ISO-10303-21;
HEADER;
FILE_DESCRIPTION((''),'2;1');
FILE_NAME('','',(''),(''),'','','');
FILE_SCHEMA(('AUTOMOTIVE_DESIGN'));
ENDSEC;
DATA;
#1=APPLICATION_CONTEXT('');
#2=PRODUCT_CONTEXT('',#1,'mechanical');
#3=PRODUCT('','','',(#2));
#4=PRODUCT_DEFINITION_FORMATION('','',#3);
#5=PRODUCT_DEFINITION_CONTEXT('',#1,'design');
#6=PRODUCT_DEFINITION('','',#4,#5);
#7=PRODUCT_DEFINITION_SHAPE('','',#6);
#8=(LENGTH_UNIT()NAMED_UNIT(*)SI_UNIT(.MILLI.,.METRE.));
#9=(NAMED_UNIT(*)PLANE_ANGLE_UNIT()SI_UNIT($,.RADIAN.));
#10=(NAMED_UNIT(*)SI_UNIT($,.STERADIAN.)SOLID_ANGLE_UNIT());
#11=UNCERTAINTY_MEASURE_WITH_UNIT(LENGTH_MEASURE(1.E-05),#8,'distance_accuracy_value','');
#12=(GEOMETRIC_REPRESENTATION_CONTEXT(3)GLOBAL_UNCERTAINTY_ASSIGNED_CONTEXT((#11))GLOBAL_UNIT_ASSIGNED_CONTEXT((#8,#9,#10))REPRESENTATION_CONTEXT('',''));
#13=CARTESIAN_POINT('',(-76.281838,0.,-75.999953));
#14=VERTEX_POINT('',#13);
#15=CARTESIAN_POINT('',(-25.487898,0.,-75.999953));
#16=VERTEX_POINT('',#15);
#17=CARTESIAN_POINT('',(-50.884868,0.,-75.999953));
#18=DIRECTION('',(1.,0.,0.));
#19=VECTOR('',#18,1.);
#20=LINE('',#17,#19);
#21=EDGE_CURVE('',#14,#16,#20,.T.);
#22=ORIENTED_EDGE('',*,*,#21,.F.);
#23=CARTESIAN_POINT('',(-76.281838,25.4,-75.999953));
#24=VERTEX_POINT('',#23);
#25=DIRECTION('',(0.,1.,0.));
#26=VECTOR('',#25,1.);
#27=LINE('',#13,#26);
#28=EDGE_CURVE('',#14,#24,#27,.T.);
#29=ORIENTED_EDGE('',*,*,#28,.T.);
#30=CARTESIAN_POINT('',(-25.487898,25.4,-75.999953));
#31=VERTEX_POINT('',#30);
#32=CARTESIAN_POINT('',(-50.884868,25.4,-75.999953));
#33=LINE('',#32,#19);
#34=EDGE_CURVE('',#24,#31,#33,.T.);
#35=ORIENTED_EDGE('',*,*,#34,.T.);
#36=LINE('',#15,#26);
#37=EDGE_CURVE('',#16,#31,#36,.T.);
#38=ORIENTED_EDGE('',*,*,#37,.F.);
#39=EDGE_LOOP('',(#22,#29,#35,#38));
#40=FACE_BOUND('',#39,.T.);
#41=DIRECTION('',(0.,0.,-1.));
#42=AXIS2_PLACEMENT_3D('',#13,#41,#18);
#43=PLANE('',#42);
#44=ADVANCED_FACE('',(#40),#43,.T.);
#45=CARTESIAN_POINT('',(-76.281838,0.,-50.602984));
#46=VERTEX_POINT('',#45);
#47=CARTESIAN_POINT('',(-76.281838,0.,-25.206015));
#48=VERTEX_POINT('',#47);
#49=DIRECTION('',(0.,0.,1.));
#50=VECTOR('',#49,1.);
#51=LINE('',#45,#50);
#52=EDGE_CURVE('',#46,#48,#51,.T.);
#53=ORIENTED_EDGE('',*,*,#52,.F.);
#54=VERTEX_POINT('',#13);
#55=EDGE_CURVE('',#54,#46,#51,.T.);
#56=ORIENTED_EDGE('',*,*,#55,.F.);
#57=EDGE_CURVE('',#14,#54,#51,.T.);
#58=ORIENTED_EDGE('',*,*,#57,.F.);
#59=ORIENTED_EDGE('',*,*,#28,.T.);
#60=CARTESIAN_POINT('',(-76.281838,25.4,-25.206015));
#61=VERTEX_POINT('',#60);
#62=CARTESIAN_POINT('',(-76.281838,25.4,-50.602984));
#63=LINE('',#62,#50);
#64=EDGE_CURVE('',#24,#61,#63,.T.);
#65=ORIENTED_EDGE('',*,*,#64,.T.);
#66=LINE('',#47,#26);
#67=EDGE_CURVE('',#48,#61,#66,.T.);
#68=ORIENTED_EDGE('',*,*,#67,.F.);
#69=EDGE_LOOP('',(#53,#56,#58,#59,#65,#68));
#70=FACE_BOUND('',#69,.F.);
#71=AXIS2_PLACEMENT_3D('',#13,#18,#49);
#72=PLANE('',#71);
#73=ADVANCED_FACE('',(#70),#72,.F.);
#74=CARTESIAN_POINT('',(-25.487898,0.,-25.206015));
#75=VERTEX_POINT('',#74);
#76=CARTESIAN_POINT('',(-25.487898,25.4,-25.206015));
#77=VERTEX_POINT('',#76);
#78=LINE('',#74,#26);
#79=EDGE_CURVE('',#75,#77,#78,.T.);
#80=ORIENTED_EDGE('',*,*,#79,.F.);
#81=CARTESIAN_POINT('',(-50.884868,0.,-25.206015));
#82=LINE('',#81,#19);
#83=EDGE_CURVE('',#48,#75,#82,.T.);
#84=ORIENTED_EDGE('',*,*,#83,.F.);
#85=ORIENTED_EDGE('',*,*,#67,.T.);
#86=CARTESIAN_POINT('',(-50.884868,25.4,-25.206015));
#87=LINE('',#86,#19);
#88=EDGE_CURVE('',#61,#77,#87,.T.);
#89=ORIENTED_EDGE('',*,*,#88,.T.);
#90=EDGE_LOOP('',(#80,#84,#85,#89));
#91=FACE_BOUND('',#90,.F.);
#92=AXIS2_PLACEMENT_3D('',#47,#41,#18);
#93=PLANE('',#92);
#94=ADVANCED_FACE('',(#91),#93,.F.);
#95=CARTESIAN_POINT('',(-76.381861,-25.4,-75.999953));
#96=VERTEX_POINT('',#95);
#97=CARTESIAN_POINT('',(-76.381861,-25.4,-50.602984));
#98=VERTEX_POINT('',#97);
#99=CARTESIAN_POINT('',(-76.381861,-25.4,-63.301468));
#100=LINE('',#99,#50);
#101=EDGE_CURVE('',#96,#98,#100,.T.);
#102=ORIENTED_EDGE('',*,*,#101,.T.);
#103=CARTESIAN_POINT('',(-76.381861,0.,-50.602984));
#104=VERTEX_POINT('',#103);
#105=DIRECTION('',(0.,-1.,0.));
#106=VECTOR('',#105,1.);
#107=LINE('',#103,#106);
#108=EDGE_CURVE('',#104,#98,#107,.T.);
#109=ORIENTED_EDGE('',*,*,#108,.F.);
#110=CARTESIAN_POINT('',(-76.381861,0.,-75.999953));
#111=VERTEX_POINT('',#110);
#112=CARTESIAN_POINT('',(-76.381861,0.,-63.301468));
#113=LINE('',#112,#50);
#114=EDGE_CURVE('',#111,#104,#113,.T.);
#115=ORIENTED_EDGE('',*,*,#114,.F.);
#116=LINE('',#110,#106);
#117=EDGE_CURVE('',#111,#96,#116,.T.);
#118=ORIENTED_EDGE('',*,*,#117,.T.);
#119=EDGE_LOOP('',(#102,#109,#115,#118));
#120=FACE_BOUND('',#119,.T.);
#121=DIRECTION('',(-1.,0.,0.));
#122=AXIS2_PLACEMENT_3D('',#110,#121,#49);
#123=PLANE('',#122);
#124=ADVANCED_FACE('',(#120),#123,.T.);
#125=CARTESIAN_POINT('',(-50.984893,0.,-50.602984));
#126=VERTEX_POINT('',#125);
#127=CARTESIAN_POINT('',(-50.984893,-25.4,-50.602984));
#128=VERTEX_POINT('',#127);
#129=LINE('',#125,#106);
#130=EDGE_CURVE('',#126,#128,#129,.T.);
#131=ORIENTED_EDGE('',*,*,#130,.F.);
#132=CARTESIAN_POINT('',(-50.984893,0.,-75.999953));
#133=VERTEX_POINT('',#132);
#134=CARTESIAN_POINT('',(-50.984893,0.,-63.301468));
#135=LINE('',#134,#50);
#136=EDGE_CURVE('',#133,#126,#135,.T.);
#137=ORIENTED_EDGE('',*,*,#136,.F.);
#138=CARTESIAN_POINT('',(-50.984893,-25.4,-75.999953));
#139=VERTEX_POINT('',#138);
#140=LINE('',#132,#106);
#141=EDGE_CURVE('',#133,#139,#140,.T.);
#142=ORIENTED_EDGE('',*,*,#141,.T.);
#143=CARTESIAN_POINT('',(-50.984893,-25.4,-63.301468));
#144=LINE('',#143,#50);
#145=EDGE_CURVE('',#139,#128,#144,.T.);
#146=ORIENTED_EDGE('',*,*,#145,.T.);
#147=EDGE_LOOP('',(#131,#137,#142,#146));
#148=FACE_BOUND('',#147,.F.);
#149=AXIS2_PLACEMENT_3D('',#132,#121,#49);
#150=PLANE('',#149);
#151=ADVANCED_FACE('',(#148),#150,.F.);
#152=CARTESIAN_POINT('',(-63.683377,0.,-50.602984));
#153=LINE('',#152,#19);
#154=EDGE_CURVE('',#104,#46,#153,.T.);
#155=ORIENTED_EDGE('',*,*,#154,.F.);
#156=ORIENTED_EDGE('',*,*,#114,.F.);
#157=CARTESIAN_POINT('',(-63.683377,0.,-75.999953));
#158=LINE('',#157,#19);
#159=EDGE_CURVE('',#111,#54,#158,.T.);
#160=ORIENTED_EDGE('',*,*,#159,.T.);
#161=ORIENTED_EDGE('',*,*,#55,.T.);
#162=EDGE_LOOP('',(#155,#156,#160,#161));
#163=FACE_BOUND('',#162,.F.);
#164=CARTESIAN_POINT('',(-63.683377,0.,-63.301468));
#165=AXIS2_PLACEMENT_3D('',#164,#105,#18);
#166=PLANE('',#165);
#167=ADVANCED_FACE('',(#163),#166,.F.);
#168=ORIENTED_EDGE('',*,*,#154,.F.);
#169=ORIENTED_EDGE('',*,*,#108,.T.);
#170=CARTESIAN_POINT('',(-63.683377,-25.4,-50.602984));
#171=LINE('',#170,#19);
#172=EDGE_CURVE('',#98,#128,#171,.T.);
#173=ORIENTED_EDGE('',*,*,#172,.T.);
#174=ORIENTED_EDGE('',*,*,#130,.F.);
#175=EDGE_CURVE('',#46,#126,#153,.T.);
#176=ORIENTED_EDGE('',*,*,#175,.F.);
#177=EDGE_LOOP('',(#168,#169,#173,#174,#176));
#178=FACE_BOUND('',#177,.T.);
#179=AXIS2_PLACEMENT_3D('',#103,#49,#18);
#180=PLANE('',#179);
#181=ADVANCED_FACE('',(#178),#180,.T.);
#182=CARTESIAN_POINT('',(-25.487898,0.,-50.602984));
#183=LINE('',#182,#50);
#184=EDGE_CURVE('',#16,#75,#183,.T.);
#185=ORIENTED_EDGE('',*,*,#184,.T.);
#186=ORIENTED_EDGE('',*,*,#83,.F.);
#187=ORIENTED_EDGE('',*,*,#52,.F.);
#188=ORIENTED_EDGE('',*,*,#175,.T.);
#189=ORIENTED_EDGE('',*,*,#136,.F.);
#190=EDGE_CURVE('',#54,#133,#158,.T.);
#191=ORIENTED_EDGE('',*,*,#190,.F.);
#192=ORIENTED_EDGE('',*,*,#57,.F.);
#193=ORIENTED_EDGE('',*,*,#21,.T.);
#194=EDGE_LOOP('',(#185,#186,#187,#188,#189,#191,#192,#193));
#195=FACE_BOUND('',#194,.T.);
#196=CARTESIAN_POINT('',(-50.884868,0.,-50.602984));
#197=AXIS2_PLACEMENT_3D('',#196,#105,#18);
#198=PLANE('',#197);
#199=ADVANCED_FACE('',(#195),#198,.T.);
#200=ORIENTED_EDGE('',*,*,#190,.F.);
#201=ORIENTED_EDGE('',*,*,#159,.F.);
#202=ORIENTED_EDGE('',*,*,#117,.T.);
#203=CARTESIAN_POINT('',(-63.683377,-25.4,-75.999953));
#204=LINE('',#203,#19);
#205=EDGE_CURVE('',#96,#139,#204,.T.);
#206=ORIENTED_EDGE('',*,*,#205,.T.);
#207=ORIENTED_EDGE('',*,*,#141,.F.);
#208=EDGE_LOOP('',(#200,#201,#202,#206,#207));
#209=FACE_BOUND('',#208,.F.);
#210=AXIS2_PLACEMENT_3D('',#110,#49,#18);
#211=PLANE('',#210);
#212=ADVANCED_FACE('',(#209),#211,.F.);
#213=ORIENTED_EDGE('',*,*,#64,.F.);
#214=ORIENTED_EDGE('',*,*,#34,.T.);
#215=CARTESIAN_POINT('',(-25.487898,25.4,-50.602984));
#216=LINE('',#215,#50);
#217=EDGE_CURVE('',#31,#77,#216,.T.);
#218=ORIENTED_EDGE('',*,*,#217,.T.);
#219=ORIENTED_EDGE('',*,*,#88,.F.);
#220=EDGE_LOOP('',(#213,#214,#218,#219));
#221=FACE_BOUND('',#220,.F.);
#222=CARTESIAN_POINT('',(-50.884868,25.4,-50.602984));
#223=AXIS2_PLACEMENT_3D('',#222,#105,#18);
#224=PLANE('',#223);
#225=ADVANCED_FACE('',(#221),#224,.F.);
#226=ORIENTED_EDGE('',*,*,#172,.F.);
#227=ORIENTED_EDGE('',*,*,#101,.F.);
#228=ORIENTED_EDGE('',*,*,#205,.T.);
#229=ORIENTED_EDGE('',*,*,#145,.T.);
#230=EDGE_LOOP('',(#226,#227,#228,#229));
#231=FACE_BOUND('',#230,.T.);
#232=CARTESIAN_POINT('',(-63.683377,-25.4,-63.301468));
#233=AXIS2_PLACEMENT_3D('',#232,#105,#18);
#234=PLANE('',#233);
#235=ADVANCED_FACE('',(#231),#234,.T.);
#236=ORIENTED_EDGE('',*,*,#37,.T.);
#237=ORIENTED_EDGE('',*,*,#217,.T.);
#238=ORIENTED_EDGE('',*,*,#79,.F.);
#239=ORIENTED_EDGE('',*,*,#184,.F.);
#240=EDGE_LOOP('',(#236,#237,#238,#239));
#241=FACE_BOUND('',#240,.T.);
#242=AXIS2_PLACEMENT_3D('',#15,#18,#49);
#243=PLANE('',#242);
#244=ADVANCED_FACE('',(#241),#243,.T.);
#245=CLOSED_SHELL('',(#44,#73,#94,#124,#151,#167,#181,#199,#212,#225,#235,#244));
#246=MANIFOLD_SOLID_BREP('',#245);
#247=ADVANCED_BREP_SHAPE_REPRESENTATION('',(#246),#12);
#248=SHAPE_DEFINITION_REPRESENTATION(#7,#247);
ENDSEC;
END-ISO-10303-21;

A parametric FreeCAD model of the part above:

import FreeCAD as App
import Part
import Sketcher

V = App.Vector
Q = App.Units.Quantity

doc = App.newDocument("Part")
params = doc.addObject("Spreadsheet::Sheet", "Params")
for row, (alias, value) in enumerate([
    ("pad1_length", "1 in"),
    ("pad2_length", "1 in"),
], start=1):
    params.set(f"A{row}", alias)
    params.set(f"B{row}", "=" + value)
    params.setAlias(f"B{row}", alias)

body = doc.addObject("PartDesign::Body", "Body")

sketch1 = body.newObject("Sketcher::SketchObject", "Sketch")
sketch1.AttachmentSupport = (doc.getObject("XZ_Plane"), [""])
sketch1.MapMode = "FlatFace"
sketch1.addGeometry([
    Part.LineSegment(V(-76, -25, 0), V(-76, -76, 0)),
    Part.LineSegment(V(-76, -76, 0), V(-25, -76, 0)),
    Part.LineSegment(V(-25, -76, 0), V(-25, -25, 0)),
    Part.LineSegment(V(-25, -25, 0), V(-76, -25, 0)),
], False)
sketch1.addConstraint([
    Sketcher.Constraint("Coincident", 0, 2, 1, 1),
    Sketcher.Constraint("Coincident", 1, 2, 2, 1),
    Sketcher.Constraint("Coincident", 2, 2, 3, 1),
    Sketcher.Constraint("Coincident", 3, 2, 0, 1),
    Sketcher.Constraint("Vertical", 0),
    Sketcher.Constraint("Horizontal", 1),
    Sketcher.Constraint("Vertical", 2),
    Sketcher.Constraint("Horizontal", 3),
    Sketcher.Constraint("Equal", 3, 0),
    Sketcher.Constraint("DistanceX", 1, 1, 1, 2, Q("50.79394 mm")),
    Sketcher.Constraint("DistanceX", 1, 2, -1, 1, Q("25.487898 mm")),
    Sketcher.Constraint("DistanceY", 0, 2, -1, 1, Q("75.999953 mm")),
])
pad1 = body.newObject("PartDesign::Pad", "Pad")
pad1.Profile = sketch1
pad1.setExpression("Length", "Params.pad1_length")
pad1.Reversed = True

sketch2 = body.newObject("Sketcher::SketchObject", "Sketch001")
sketch2.AttachmentSupport = (doc.getObject("XZ_Plane"), [""])
sketch2.MapMode = "FlatFace"
sketch2.addGeometry([
    Part.LineSegment(V(-76, -51, 0), V(-76, -76, 0)),
    Part.LineSegment(V(-76, -76, 0), V(-51, -76, 0)),
    Part.LineSegment(V(-51, -76, 0), V(-51, -51, 0)),
    Part.LineSegment(V(-51, -51, 0), V(-76, -51, 0)),
], False)
sketch2.addConstraint([
    Sketcher.Constraint("Coincident", 0, 2, 1, 1),
    Sketcher.Constraint("Coincident", 1, 2, 2, 1),
    Sketcher.Constraint("Coincident", 2, 2, 3, 1),
    Sketcher.Constraint("Coincident", 3, 2, 0, 1),
    Sketcher.Constraint("Vertical", 0),
    Sketcher.Constraint("Horizontal", 1),
    Sketcher.Constraint("Vertical", 2),
    Sketcher.Constraint("Horizontal", 3),
    Sketcher.Constraint("Equal", 3, 0),
    Sketcher.Constraint("DistanceX", 1, 1, 1, 2, Q("25.396969 mm")),
    Sketcher.Constraint("DistanceX", 0, 2, -1, 1, Q("76.381861 mm")),
    Sketcher.Constraint("DistanceY", 0, 2, -1, 1, Q("75.999953 mm")),
])
pad2 = body.newObject("PartDesign::Pad", "Pad001")
pad2.Profile = sketch2
pad2.setExpression("Length", "Params.pad2_length")

doc.recompute()
